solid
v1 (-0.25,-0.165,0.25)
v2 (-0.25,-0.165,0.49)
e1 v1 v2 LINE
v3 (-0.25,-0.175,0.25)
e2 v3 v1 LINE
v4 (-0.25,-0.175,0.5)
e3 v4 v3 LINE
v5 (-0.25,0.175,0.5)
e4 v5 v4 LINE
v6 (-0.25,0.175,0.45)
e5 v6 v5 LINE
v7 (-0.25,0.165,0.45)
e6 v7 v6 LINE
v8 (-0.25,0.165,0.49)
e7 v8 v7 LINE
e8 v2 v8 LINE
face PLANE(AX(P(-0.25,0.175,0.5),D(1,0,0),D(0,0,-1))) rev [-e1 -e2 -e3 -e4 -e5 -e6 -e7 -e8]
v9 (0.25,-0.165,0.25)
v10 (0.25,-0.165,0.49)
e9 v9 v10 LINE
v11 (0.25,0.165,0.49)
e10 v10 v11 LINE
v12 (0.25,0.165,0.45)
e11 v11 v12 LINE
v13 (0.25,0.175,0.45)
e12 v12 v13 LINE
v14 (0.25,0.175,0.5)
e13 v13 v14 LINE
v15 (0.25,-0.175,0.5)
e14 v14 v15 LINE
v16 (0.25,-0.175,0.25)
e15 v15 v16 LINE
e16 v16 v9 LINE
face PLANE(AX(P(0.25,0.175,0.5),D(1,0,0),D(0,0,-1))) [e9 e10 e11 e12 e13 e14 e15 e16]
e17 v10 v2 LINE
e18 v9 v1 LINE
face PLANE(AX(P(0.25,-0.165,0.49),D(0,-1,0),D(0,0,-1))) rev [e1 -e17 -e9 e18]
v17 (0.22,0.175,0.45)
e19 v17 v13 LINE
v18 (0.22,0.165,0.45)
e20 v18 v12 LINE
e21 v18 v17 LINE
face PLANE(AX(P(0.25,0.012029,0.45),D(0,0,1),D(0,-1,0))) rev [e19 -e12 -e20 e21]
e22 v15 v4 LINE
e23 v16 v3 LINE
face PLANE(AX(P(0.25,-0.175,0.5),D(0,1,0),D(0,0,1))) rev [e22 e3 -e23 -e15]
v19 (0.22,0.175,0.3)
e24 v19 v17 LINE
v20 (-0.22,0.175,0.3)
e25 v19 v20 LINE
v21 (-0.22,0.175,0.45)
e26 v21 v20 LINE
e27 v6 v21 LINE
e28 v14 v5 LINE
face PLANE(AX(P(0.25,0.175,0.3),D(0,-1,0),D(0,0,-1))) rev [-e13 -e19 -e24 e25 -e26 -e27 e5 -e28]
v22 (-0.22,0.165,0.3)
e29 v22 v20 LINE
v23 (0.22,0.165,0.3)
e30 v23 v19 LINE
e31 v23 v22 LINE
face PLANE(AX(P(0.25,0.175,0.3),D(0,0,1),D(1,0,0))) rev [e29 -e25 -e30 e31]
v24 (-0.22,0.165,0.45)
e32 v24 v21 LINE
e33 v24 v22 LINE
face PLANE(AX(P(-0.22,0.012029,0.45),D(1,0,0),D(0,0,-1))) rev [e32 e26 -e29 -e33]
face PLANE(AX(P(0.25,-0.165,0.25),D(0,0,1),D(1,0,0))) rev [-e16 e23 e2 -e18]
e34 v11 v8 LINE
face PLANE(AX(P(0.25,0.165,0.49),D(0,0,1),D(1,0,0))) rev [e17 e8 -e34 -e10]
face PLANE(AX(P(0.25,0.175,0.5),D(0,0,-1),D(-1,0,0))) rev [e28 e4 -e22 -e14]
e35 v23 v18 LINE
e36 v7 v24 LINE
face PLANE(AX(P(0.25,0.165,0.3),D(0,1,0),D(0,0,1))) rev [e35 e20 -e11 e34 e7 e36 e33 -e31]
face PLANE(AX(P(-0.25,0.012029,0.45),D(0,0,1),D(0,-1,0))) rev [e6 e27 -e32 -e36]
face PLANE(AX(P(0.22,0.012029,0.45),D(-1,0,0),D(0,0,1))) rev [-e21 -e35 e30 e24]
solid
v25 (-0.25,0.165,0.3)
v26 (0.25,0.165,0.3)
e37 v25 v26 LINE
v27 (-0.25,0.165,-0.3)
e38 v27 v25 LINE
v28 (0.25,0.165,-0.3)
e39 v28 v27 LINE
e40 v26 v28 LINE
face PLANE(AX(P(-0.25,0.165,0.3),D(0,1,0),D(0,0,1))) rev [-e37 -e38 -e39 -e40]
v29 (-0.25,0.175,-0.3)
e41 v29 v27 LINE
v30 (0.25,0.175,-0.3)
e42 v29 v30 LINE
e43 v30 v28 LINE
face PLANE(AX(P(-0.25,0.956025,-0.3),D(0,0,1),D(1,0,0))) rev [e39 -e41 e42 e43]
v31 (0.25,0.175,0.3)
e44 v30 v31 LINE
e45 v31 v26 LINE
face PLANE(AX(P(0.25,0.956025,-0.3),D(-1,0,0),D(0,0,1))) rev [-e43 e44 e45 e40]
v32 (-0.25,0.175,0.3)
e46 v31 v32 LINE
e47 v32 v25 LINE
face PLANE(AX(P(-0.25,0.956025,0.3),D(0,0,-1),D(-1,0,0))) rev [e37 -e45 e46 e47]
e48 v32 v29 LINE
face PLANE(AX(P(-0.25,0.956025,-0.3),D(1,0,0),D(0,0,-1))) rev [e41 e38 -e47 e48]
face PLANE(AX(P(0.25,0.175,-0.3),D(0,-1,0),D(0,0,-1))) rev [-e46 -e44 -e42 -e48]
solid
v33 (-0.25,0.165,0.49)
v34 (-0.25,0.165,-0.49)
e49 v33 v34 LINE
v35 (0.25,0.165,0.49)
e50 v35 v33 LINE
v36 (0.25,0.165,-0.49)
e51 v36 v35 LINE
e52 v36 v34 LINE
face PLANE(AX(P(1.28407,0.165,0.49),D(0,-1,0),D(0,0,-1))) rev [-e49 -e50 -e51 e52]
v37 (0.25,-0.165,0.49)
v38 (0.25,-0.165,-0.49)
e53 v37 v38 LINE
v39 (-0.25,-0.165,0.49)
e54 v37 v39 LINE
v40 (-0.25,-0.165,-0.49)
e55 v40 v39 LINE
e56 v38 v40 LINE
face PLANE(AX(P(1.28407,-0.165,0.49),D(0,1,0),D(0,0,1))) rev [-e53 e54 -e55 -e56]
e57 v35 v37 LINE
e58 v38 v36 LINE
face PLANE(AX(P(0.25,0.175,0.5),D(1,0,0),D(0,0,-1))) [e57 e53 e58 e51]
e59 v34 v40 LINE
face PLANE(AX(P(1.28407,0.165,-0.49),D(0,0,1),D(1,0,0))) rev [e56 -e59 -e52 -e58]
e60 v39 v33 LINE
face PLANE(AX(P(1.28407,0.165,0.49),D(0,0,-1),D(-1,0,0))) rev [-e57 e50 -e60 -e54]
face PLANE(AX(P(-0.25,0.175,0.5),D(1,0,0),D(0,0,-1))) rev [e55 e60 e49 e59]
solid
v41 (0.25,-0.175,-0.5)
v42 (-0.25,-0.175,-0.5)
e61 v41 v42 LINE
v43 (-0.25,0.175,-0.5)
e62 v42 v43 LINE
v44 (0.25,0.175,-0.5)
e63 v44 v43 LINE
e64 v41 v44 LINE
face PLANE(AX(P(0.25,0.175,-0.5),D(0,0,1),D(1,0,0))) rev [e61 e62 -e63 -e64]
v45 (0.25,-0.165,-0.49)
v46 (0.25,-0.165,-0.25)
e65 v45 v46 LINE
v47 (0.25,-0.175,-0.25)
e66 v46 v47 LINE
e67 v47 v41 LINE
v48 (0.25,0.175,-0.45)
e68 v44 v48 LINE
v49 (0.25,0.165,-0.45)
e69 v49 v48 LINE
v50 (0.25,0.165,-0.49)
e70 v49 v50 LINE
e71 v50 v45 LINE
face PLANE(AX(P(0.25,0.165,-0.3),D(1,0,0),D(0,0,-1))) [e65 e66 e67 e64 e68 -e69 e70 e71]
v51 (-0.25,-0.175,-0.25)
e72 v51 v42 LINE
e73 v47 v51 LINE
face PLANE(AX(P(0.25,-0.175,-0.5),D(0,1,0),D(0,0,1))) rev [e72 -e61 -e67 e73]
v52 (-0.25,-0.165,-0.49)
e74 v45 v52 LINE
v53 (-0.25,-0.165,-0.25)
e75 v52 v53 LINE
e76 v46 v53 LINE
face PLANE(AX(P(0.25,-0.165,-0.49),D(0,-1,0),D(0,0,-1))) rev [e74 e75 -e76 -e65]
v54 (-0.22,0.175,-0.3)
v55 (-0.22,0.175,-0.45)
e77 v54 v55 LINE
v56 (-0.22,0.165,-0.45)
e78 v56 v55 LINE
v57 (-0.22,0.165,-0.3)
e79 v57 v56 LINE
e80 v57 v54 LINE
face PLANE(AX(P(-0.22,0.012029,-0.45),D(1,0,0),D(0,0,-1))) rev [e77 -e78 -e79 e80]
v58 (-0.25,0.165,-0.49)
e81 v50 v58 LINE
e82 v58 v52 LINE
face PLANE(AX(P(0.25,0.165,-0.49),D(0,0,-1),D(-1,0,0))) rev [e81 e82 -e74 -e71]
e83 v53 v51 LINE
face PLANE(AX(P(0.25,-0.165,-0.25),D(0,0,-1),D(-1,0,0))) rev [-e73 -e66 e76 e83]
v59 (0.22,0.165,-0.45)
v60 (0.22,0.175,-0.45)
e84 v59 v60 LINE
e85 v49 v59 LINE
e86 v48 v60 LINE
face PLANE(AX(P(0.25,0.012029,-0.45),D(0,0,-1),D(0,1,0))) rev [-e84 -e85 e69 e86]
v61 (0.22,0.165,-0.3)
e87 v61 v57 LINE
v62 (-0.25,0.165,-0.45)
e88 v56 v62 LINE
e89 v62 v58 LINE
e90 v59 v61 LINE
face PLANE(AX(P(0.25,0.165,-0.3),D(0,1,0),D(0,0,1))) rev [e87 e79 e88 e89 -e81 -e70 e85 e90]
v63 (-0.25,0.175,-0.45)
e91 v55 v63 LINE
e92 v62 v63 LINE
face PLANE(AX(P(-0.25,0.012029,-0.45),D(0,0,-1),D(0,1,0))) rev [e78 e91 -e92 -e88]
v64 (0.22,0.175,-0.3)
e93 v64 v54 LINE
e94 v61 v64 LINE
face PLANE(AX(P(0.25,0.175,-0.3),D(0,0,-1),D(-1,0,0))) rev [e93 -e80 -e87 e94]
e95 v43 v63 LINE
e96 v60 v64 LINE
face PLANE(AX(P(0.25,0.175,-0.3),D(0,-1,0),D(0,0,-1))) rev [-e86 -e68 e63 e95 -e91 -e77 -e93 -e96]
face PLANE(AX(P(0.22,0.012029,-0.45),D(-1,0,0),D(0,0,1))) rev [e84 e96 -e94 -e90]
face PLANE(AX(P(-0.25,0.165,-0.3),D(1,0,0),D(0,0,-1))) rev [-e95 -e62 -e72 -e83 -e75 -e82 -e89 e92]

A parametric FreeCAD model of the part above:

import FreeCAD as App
import Part
import Sketcher

doc = App.newDocument("Part")
body = doc.addObject("PartDesign::Body", "Body")

sketch1 = body.newObject("Sketcher::SketchObject", "Sketch")
sketch1.AttachmentSupport = (doc.getObject("YZ_Plane"), [""])
sketch1.MapMode = "FlatFace"
sketch1.addGeometry([
    Part.LineSegment(App.Vector(0.175, 0.5, 0), App.Vector(-0.175, 0.5, 0)),
    Part.LineSegment(App.Vector(-0.175, 0.5, 0), App.Vector(-0.175, 0.25, 0)),
    Part.LineSegment(App.Vector(-0.175, 0.25, 0), App.Vector(-0.165, 0.25, 0)),
    Part.LineSegment(App.Vector(-0.165, 0.25, 0), App.Vector(-0.165, 0.49, 0)),
    Part.LineSegment(App.Vector(-0.165, 0.49, 0), App.Vector(0.165, 0.49, 0)),
    Part.LineSegment(App.Vector(0.165, 0.49, 0), App.Vector(0.165, 0.3, 0)),
    Part.LineSegment(App.Vector(0.165, 0.3, 0), App.Vector(0.175, 0.3, 0)),
    Part.LineSegment(App.Vector(0.175, 0.3, 0), App.Vector(0.175, 0.5, 0)),
], False)
sketch1.addConstraint([
    Sketcher.Constraint("Coincident", 0, 2, 1, 1),
    Sketcher.Constraint("Coincident", 1, 2, 2, 1),
    Sketcher.Constraint("Coincident", 2, 2, 3, 1),
    Sketcher.Constraint("Coincident", 3, 2, 4, 1),
    Sketcher.Constraint("Coincident", 4, 2, 5, 1),
    Sketcher.Constraint("Coincident", 5, 2, 6, 1),
    Sketcher.Constraint("Coincident", 6, 2, 7, 1),
    Sketcher.Constraint("Coincident", 7, 2, 0, 1),
    Sketcher.Constraint("Horizontal", 0),
    Sketcher.Constraint("Vertical", 1),
    Sketcher.Constraint("Horizontal", 2),
    Sketcher.Constraint("Vertical", 3),
    Sketcher.Constraint("Horizontal", 4),
    Sketcher.Constraint("Vertical", 5),
    Sketcher.Constraint("Horizontal", 6),
    Sketcher.Constraint("Vertical", 7),
    Sketcher.Constraint("Equal", 2, 6),
    Sketcher.Constraint("DistanceY", 7, 1, 7, 2, 0.2),
    Sketcher.Constraint("DistanceX", 0, 2, 0, 1, 0.35),
    Sketcher.Constraint("DistanceX", 2, 1, 2, 2, 0.01),
    Sketcher.Constraint("DistanceY", 1, 2, 1, 1, 0.25),
    Sketcher.Constraint("DistanceY", 3, 1, 3, 2, 0.24),
    Sketcher.Constraint("DistanceY", -1, 1, 0, 2, 0.5),
    Sketcher.Constraint("DistanceX", 0, 2, -1, 1, 0.175),
])
pad1 = body.newObject("PartDesign::Pad", "Pad")
pad1.Profile = sketch1
pad1.Length = 0.5
pad1.Midplane = True
body2 = doc.addObject("PartDesign::Body", "Body001")

sketch2 = body2.newObject("Sketcher::SketchObject", "Sketch001")
sketch2.AttachmentSupport = (doc.getObject("YZ_Plane001"), [""])
sketch2.MapMode = "FlatFace"
sketch2.addGeometry([
    Part.LineSegment(App.Vector(0.175, -0.5, 0), App.Vector(0.175, -0.3, 0)),
    Part.LineSegment(App.Vector(0.175, -0.3, 0), App.Vector(0.165, -0.3, 0)),
    Part.LineSegment(App.Vector(0.165, -0.3, 0), App.Vector(0.165, -0.49, 0)),
    Part.LineSegment(App.Vector(0.165, -0.49, 0), App.Vector(-0.165, -0.49, 0)),
    Part.LineSegment(App.Vector(-0.165, -0.49, 0), App.Vector(-0.165, -0.25, 0)),
    Part.LineSegment(App.Vector(-0.165, -0.25, 0), App.Vector(-0.175, -0.25, 0)),
    Part.LineSegment(App.Vector(-0.175, -0.25, 0), App.Vector(-0.175, -0.5, 0)),
    Part.LineSegment(App.Vector(-0.175, -0.5, 0), App.Vector(0.175, -0.5, 0)),
], False)
sketch2.addConstraint([
    Sketcher.Constraint("Coincident", 0, 2, 1, 1),
    Sketcher.Constraint("Coincident", 1, 2, 2, 1),
    Sketcher.Constraint("Coincident", 2, 2, 3, 1),
    Sketcher.Constraint("Coincident", 3, 2, 4, 1),
    Sketcher.Constraint("Coincident", 4, 2, 5, 1),
    Sketcher.Constraint("Coincident", 5, 2, 6, 1),
    Sketcher.Constraint("Coincident", 6, 2, 7, 1),
    Sketcher.Constraint("Coincident", 7, 2, 0, 1),
    Sketcher.Constraint("Vertical", 0),
    Sketcher.Constraint("Horizontal", 1),
    Sketcher.Constraint("Vertical", 2),
    Sketcher.Constraint("Horizontal", 3),
    Sketcher.Constraint("Vertical", 4),
    Sketcher.Constraint("Horizontal", 5),
    Sketcher.Constraint("Vertical", 6),
    Sketcher.Constraint("Horizontal", 7),
    Sketcher.Constraint("Equal", 1, 5),
    Sketcher.Constraint("DistanceY", 0, 1, 0, 2, 0.2),
    Sketcher.Constraint("DistanceX", 1, 2, 1, 1, 0.01),
    Sketcher.Constraint("DistanceX", 3, 2, 3, 1, 0.33),
    Sketcher.Constraint("DistanceY", 2, 2, 2, 1, 0.19),
    Sketcher.Constraint("DistanceY", 4, 1, 4, 2, 0.24),
    Sketcher.Constraint("DistanceY", 0, 2, -1, 1, 0.3),
    Sketcher.Constraint("DistanceX", -1, 1, 0, 2, 0.175),
])
pad2 = body2.newObject("PartDesign::Pad", "Pad001")
pad2.Profile = sketch2
pad2.Length = 0.5
pad2.Midplane = True
body3 = doc.addObject("PartDesign::Body", "Body002")

sketch3 = body3.newObject("Sketcher::SketchObject", "Sketch002")
sketch3.AttachmentSupport = (doc.getObject("YZ_Plane002"), [""])
sketch3.MapMode = "FlatFace"
sketch3.AttachmentOffset = App.Placement(App.Vector(0, 0, -0.25), App.Rotation())
sketch3.addGeometry([
    Part.LineSegment(App.Vector(0.165, 0.49, 0), App.Vector(-0.165, 0.49, 0)),
    Part.LineSegment(App.Vector(-0.165, 0.49, 0), App.Vector(-0.165, -0.49, 0)),
    Part.LineSegment(App.Vector(-0.165, -0.49, 0), App.Vector(0.165, -0.49, 0)),
    Part.LineSegment(App.Vector(0.165, -0.49, 0), App.Vector(0.165, 0.49, 0)),
], False)
sketch3.addConstraint([
    Sketcher.Constraint("Coincident", 0, 2, 1, 1),
    Sketcher.Constraint("Coincident", 1, 2, 2, 1),
    Sketcher.Constraint("Coincident", 2, 2, 3, 1),
    Sketcher.Constraint("Coincident", 3, 2, 0, 1),
    Sketcher.Constraint("Horizontal", 0),
    Sketcher.Constraint("Vertical", 1),
    Sketcher.Constraint("Horizontal", 2),
    Sketcher.Constraint("Vertical", 3),
    Sketcher.Constraint("Symmetric", 0, 2, 2, 2, -1, 1),
    Sketcher.Constraint("DistanceX", 0, 2, 0, 1, 0.33),
    Sketcher.Constraint("DistanceY", 1, 2, 1, 1, 0.98),
])
pad3 = body3.newObject("PartDesign::Pad", "Pad002")
pad3.Profile = sketch3
pad3.Length = 0.5
body4 = doc.addObject("PartDesign::Body", "Body003")
body4.AllowCompound = True

sketch4 = body4.newObject("Sketcher::SketchObject", "Sketch003")
sketch4.AttachmentSupport = (doc.getObject("XZ_Plane003"), [""])
sketch4.MapMode = "FlatFace"
sketch4.AttachmentOffset = App.Placement(App.Vector(0, 0, -0.175), App.Rotation())
sketch4.addGeometry([
    Part.LineSegment(App.Vector(-0.25, -0.45, 0), App.Vector(-0.25, -0.3, 0)),
    Part.LineSegment(App.Vector(-0.25, -0.3, 0), App.Vector(-0.22, -0.3, 0)),
    Part.LineSegment(App.Vector(-0.22, -0.3, 0), App.Vector(-0.22, -0.45, 0)),
    Part.LineSegment(App.Vector(-0.22, -0.45, 0), App.Vector(-0.25, -0.45, 0)),
    Part.LineSegment(App.Vector(0.22, -0.45, 0), App.Vector(0.22, -0.3, 0)),
    Part.LineSegment(App.Vector(0.22, -0.3, 0), App.Vector(0.25, -0.3, 0)),
    Part.LineSegment(App.Vector(0.25, -0.3, 0), App.Vector(0.25, -0.45, 0)),
    Part.LineSegment(App.Vector(0.25, -0.45, 0), App.Vector(0.22, -0.45, 0)),
    Part.LineSegment(App.Vector(0.22, 0.3, 0), App.Vector(0.22, 0.45, 0)),
    Part.LineSegment(App.Vector(0.22, 0.45, 0), App.Vector(0.25, 0.45, 0)),
    Part.LineSegment(App.Vector(0.25, 0.45, 0), App.Vector(0.25, 0.3, 0)),
    Part.LineSegment(App.Vector(0.25, 0.3, 0), App.Vector(0.22, 0.3, 0)),
    Part.LineSegment(App.Vector(-0.25, 0.3, 0), App.Vector(-0.25, 0.45, 0)),
    Part.LineSegment(App.Vector(-0.25, 0.45, 0), App.Vector(-0.22, 0.45, 0)),
    Part.LineSegment(App.Vector(-0.22, 0.45, 0), App.Vector(-0.22, 0.3, 0)),
    Part.LineSegment(App.Vector(-0.22, 0.3, 0), App.Vector(-0.25, 0.3, 0)),
], False)
sketch4.addConstraint([
    Sketcher.Constraint("Coincident", 0, 2, 1, 1),
    Sketcher.Constraint("Coincident", 1, 2, 2, 1),
    Sketcher.Constraint("Coincident", 2, 2, 3, 1),
    Sketcher.Constraint("Coincident", 3, 2, 0, 1),
    Sketcher.Constraint("Coincident", 4, 2, 5, 1),
    Sketcher.Constraint("Coincident", 5, 2, 6, 1),
    Sketcher.Constraint("Coincident", 6, 2, 7, 1),
    Sketcher.Constraint("Coincident", 7, 2, 4, 1),
    Sketcher.Constraint("Coincident", 8, 2, 9, 1),
    Sketcher.Constraint("Coincident", 9, 2, 10, 1),
    Sketcher.Constraint("Coincident", 10, 2, 11, 1),
    Sketcher.Constraint("Coincident", 11, 2, 8, 1),
    Sketcher.Constraint("Coincident", 12, 2, 13, 1),
    Sketcher.Constraint("Coincident", 13, 2, 14, 1),
    Sketcher.Constraint("Coincident", 14, 2, 15, 1),
    Sketcher.Constraint("Coincident", 15, 2, 12, 1),
    Sketcher.Constraint("Vertical", 0),
    Sketcher.Constraint("Horizontal", 1),
    Sketcher.Constraint("Vertical", 2),
    Sketcher.Constraint("Horizontal", 3),
    Sketcher.Constraint("Vertical", 4),
    Sketcher.Constraint("Horizontal", 5),
    Sketcher.Constraint("Vertical", 6),
    Sketcher.Constraint("Horizontal", 7),
    Sketcher.Constraint("Vertical", 8),
    Sketcher.Constraint("Horizontal", 9),
    Sketcher.Constraint("Vertical", 10),
    Sketcher.Constraint("Horizontal", 11),
    Sketcher.Constraint("Vertical", 12),
    Sketcher.Constraint("Horizontal", 13),
    Sketcher.Constraint("Vertical", 14),
    Sketcher.Constraint("Horizontal", 15),
    Sketcher.Constraint("Symmetric", 2, 2, 8, 2, -1, 1),
    Sketcher.Constraint("Symmetric", 0, 2, 10, 2, -1, 1),
    Sketcher.Constraint("Symmetric", 6, 2, 12, 2, -1, 1),
    Sketcher.Constraint("Symmetric", 4, 2, 14, 2, -1, 1),
    Sketcher.Constraint("Symmetric", 1, 2, 4, 2, -2),
    Sketcher.Constraint("Symmetric", 3, 2, 6, 2, -2),
    Sketcher.Constraint("DistanceX", 1, 1, 1, 2, 0.03),
    Sketcher.Constraint("DistanceY", 0, 1, 0, 2, 0.15),
    Sketcher.Constraint("DistanceY", 0, 2, -1, 1, 0.3),
    Sketcher.Constraint("DistanceX", 0, 2, 5, 2, 0.5),
])
pad4 = body4.newObject("PartDesign::Pad", "Pad003")
pad4.Profile = sketch4
pad4.Length = 0.01
doc.recompute()

body5 = doc.addObject("PartDesign::Body", "Body004")
body5.BaseFeature = body4
boolean = body.newObject("PartDesign::Boolean", "Boolean")
boolean.Type = "Cut"
boolean.addObjects([body5])
doc.recompute()

boolean2 = body2.newObject("PartDesign::Boolean", "Boolean001")
boolean2.Type = "Cut"
boolean2.addObjects([body4])
body6 = doc.addObject("PartDesign::Body", "Body005")

sketch5 = body6.newObject("Sketcher::SketchObject", "Sketch004")
sketch5.AttachmentSupport = (doc.getObject("XZ_Plane005"), [""])
sketch5.MapMode = "FlatFace"
sketch5.AttachmentOffset = App.Placement(App.Vector(0, 0, -0.165), App.Rotation())
sketch5.addGeometry([
    Part.LineSegment(App.Vector(-0.25, -0.3, 0), App.Vector(-0.25, 0.3, 0)),
    Part.LineSegment(App.Vector(-0.25, 0.3, 0), App.Vector(0.25, 0.3, 0)),
    Part.LineSegment(App.Vector(0.25, 0.3, 0), App.Vector(0.25, -0.3, 0)),
    Part.LineSegment(App.Vector(0.25, -0.3, 0), App.Vector(-0.25, -0.3, 0)),
], False)
sketch5.addConstraint([
    Sketcher.Constraint("Coincident", 0, 2, 1, 1),
    Sketcher.Constraint("Coincident", 1, 2, 2, 1),
    Sketcher.Constraint("Coincident", 2, 2, 3, 1),
    Sketcher.Constraint("Coincident", 3, 2, 0, 1),
    Sketcher.Constraint("Vertical", 0),
    Sketcher.Constraint("Horizontal", 1),
    Sketcher.Constraint("Vertical", 2),
    Sketcher.Constraint("Horizontal", 3),
    Sketcher.Constraint("Symmetric", 0, 2, 2, 2, -1, 1),
    Sketcher.Constraint("DistanceX", 1, 1, 1, 2, 0.5),
    Sketcher.Constraint("DistanceY", 0, 1, 0, 2, 0.6),
])
pad5 = body6.newObject("PartDesign::Pad", "Pad004")
pad5.Profile = sketch5
pad5.Length = 0.01
pad5.Reversed = True

doc.recompute()
